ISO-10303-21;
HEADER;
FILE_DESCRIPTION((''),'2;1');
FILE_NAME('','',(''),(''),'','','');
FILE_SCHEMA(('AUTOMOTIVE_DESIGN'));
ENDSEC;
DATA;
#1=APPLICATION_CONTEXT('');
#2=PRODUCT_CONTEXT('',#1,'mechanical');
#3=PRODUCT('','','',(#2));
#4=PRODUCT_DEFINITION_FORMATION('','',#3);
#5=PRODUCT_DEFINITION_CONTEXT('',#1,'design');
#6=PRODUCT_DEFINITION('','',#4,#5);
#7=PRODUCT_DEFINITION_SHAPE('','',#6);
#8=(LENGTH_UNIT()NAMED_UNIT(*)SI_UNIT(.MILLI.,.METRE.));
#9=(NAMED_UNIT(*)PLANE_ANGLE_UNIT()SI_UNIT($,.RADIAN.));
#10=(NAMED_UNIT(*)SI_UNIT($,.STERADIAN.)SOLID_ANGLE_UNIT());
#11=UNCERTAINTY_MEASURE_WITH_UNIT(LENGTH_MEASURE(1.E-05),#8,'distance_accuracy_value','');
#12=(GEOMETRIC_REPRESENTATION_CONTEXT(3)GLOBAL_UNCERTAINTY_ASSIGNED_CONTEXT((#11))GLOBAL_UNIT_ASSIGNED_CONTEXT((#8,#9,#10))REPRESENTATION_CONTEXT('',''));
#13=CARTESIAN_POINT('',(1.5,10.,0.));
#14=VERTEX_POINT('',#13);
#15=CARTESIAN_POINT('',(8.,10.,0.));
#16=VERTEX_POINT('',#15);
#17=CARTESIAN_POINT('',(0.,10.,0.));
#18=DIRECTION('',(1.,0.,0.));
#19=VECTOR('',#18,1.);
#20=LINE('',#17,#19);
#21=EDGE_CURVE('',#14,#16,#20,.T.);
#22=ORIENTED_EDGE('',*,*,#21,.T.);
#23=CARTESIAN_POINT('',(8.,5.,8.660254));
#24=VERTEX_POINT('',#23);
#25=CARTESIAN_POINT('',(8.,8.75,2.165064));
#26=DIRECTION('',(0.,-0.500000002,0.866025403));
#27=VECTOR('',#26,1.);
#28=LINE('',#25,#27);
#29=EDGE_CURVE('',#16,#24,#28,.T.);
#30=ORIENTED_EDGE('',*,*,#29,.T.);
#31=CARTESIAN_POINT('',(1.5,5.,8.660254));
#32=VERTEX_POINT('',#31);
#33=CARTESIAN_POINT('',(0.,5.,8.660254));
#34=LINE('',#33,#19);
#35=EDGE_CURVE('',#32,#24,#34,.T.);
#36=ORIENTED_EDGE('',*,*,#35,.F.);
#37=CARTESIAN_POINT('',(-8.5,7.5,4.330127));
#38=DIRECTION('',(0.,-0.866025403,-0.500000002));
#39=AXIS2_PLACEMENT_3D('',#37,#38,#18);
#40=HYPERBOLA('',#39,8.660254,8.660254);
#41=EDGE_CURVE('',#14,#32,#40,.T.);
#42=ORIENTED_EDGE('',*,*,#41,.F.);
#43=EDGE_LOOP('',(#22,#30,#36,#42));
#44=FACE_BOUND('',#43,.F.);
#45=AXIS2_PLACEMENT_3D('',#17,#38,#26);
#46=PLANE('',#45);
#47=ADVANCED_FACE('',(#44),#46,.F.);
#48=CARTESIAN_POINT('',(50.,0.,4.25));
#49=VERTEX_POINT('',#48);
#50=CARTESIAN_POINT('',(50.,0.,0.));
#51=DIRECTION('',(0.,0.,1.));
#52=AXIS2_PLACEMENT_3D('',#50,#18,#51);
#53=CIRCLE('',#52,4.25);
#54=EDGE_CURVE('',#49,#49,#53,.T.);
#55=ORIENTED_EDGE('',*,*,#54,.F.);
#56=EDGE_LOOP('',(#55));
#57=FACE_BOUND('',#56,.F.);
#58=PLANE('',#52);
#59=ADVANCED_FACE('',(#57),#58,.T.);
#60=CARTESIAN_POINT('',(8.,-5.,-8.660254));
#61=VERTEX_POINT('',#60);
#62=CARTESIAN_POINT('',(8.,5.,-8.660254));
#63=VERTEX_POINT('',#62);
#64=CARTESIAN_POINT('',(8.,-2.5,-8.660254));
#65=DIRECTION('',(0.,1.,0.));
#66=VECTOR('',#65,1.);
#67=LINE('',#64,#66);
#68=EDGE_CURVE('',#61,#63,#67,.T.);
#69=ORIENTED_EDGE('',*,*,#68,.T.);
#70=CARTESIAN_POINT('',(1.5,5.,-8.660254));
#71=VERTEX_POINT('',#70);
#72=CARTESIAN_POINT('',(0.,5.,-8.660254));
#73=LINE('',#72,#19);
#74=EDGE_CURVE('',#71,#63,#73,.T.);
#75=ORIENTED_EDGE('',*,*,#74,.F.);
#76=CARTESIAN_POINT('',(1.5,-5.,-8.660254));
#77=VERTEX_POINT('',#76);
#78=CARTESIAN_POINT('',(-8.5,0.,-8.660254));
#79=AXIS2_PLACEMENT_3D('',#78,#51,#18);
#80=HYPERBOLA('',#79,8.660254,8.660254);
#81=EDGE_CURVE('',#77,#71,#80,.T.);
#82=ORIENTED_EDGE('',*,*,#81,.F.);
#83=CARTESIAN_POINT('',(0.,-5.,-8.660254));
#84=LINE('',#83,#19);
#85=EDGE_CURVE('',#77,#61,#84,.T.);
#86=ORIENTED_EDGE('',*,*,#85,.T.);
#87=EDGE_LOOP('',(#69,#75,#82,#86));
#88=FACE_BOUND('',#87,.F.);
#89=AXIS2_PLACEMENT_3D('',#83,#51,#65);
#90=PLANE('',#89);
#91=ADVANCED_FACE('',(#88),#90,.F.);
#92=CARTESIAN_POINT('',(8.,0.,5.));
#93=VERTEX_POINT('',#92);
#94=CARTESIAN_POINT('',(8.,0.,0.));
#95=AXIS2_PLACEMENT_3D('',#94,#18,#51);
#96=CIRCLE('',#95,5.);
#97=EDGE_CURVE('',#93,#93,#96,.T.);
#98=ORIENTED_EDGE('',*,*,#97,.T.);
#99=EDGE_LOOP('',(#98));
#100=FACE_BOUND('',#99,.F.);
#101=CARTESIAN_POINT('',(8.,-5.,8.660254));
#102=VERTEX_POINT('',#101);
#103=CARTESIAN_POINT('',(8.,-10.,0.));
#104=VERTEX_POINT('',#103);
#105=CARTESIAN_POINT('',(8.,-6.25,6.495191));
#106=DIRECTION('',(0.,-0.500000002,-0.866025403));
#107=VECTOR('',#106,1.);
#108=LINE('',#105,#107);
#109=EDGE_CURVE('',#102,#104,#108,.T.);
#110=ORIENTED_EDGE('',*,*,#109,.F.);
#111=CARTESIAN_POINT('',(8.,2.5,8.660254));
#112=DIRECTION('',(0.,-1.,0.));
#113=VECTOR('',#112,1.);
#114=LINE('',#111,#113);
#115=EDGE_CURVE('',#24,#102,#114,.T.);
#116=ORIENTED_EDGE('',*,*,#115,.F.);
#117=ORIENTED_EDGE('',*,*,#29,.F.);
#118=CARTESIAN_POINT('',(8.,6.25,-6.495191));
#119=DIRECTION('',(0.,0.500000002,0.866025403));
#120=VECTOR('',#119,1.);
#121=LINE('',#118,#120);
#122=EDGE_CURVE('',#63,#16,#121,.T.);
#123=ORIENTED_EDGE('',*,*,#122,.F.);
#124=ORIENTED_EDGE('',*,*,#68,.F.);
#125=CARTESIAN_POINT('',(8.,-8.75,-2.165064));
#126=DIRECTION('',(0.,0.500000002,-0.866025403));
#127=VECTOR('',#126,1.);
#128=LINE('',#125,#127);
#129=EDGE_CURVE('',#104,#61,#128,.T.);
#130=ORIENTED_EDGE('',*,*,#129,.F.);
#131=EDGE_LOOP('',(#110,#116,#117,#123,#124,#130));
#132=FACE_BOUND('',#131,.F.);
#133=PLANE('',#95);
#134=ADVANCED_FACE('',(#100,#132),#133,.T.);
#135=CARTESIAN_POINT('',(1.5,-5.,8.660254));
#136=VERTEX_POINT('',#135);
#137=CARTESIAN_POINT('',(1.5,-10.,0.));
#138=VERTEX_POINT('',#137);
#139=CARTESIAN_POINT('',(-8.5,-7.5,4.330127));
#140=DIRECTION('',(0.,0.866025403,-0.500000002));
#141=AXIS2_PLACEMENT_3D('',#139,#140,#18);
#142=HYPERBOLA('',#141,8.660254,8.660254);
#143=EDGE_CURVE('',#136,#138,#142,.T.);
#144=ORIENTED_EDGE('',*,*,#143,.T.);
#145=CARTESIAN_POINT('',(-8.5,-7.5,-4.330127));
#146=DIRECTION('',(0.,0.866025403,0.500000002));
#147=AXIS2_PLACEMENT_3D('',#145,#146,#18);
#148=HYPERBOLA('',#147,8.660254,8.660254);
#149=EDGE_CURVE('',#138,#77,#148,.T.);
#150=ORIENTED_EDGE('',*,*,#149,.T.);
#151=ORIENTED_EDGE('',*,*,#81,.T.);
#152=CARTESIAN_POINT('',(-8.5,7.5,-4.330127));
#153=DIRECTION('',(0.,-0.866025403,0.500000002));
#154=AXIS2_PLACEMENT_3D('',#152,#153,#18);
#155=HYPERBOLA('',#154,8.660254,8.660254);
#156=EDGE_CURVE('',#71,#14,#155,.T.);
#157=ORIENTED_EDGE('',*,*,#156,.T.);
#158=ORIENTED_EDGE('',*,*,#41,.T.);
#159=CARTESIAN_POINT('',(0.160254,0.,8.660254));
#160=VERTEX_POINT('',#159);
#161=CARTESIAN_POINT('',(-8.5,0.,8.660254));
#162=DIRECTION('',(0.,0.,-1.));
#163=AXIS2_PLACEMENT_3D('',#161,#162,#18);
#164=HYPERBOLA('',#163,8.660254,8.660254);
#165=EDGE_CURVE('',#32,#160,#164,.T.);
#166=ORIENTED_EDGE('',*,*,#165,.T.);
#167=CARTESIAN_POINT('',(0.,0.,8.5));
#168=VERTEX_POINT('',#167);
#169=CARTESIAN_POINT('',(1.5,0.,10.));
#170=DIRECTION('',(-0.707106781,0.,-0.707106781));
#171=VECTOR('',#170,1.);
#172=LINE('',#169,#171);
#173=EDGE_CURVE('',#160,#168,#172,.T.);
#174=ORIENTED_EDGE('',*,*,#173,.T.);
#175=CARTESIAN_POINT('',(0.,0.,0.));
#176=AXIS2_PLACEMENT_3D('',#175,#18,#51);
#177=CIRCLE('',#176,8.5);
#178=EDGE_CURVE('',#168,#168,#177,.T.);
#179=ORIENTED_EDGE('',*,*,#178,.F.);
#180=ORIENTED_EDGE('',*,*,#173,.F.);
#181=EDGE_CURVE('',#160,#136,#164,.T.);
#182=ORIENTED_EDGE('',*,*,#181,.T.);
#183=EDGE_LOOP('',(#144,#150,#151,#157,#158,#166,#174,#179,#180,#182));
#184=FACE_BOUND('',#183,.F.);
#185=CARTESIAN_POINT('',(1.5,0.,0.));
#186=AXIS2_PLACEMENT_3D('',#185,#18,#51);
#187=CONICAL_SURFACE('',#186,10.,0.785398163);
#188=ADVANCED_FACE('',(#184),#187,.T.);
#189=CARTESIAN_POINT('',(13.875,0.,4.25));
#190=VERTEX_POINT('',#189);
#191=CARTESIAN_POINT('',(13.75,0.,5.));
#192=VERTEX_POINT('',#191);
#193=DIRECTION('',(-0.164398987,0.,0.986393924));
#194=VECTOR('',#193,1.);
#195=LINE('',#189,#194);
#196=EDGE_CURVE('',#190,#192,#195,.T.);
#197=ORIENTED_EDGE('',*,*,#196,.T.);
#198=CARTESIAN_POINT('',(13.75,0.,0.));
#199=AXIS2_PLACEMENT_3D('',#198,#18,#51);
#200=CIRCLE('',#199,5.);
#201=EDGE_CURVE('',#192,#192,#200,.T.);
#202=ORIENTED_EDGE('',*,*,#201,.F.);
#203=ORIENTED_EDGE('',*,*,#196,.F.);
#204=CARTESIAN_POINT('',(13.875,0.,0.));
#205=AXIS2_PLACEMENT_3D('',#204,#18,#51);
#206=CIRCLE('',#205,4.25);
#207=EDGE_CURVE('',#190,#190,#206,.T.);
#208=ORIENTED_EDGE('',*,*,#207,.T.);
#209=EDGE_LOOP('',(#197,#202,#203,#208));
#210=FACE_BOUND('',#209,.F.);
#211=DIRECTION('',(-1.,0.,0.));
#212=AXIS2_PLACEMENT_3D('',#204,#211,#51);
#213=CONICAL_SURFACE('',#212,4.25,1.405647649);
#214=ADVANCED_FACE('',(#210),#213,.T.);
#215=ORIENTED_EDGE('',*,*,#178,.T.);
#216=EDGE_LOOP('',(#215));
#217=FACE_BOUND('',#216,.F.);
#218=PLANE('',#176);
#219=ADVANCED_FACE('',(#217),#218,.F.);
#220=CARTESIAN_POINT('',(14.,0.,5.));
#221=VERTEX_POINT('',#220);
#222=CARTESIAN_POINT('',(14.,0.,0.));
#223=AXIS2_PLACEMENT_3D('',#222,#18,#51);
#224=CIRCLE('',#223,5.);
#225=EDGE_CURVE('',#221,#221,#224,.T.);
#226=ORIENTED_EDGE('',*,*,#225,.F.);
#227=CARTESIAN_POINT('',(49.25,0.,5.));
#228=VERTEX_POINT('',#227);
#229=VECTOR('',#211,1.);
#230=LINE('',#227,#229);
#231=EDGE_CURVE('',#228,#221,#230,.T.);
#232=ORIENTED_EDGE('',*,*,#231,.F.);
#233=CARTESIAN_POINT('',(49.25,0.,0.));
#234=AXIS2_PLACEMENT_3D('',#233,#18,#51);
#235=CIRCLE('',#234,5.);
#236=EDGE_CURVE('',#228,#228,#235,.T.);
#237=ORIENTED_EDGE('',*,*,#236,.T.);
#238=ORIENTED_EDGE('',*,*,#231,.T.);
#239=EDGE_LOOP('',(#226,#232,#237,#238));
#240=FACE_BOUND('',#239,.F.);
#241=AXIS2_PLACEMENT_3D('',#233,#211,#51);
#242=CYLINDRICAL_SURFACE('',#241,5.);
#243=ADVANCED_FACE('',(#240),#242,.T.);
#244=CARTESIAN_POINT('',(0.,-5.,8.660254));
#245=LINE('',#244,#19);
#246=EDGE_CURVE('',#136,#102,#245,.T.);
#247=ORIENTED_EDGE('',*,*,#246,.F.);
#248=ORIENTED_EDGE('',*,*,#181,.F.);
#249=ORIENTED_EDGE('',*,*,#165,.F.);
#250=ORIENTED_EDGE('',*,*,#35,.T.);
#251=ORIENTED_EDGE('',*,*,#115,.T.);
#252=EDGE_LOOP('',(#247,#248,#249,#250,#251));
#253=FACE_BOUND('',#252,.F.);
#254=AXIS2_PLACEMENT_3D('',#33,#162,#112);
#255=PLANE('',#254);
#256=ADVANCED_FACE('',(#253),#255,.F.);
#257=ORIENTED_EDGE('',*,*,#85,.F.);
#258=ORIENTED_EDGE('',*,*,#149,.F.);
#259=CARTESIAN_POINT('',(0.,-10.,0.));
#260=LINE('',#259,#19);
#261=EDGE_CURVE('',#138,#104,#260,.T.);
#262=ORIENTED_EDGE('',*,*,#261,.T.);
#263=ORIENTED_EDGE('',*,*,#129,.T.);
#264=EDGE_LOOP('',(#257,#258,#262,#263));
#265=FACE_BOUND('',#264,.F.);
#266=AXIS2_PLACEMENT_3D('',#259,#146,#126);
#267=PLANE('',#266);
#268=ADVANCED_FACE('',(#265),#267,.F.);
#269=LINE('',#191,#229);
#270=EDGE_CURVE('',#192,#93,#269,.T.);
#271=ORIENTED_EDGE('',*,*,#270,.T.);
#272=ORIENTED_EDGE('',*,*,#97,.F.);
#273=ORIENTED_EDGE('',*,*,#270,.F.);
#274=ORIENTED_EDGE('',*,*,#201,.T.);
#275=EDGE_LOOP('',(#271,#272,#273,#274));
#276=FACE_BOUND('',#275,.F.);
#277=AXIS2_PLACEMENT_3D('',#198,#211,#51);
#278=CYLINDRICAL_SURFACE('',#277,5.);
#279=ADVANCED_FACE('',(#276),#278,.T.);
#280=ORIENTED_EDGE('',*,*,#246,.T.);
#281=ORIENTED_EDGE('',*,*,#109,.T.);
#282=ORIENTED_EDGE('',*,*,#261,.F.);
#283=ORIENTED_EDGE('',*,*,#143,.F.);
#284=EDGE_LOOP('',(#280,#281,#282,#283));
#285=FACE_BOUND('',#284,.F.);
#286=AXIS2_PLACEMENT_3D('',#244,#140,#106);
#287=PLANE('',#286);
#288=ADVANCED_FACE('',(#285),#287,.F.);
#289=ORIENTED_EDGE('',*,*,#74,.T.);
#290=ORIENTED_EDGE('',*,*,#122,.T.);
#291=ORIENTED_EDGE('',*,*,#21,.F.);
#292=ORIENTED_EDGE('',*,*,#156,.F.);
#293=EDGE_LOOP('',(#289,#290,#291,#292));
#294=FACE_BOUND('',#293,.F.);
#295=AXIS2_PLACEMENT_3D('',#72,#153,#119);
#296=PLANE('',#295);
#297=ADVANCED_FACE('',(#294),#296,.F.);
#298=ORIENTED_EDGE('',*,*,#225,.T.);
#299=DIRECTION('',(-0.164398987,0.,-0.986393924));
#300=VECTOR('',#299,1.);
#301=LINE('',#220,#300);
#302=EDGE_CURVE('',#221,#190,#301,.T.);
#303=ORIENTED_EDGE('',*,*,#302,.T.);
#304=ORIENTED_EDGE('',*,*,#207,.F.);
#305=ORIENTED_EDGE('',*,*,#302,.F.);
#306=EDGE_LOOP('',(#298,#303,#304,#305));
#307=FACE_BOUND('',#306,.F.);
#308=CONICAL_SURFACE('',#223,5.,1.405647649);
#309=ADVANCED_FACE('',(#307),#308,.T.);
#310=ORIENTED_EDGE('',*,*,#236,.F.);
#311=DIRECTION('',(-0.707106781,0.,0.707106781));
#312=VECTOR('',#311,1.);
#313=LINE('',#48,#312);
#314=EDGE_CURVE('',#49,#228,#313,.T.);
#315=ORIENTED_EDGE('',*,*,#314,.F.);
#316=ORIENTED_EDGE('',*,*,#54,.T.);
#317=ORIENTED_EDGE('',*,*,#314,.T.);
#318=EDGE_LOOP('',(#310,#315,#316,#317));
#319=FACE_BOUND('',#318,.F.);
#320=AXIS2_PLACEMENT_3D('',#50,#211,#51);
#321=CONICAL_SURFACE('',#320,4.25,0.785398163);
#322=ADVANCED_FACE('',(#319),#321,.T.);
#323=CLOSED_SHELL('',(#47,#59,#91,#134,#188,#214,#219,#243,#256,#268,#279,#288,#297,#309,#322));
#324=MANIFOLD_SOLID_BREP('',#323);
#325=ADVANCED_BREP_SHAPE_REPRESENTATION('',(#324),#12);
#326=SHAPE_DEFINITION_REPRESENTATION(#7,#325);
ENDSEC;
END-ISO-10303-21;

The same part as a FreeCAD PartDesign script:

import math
import FreeCAD as App
import Part
import Sketcher
from FreeCAD import Vector
Q = App.Units.Quantity


def edges_at(feature, points):
    """Names of the edges that pass closest to the given points."""
    edges = feature.Shape.Edges
    near = lambda p: min(range(len(edges)), key=lambda i: edges[i].distToShape(Part.Vertex(*p))[0])
    return sorted({f"Edge{near(p) + 1}" for p in points})


def add_polygon(sketch, points):
    """Adds a closed chain of lines whose ends are joined by coincident constraints."""
    first, n = sketch.GeometryCount, len(points)
    for a, b in zip(points, points[1:] + points[:1]):
        sketch.addGeometry(Part.LineSegment(App.Vector(*a, 0), App.Vector(*b, 0)), False)
    for i in range(n):
        sketch.addConstraint(Sketcher.Constraint("Coincident", first + i, 2, first + (i + 1) % n, 1))

doc = App.newDocument("Part")
body = doc.addObject("PartDesign::Body", "Body")

# Sketch on XZ plane
sketch1 = body.newObject("Sketcher::SketchObject", "Sketch")
sketch1.AttachmentSupport = (doc.getObject("XZ_Plane"), [""])
sketch1.MapMode = "FlatFace"
add_polygon(sketch1, [(8, 5), (8, 10), (0, 10), (0, 0), (50, 0), (50, 4.2), (49.2, 5), (14, 5), (13.9, 4.2), (13.8, 5)])  # lines 0-9
sketch1.addConstraint([
    Sketcher.Constraint("Vertical", 0),
    Sketcher.Constraint("Horizontal", 1),
    Sketcher.Constraint("Vertical", 2),
    Sketcher.Constraint("Horizontal", 3),
    Sketcher.Constraint("Vertical", 4),
    Sketcher.Constraint("Horizontal", 6),
    Sketcher.Constraint("Horizontal", 9),
    Sketcher.Constraint("Coincident", 2, 2, -1, 1),
    Sketcher.Constraint("Horizontal", 4, 2, 7, 2),
    Sketcher.Constraint("Horizontal", 6, 2, 8, 2),
    Sketcher.Constraint("Equal", 7, 8),
    Sketcher.Constraint("DistanceX", 1, 2, 1, 1, Q("8 mm")),
    Sketcher.Constraint("DistanceX", 3, 1, 3, 2, Q("50 mm")),
    Sketcher.Constraint("DistanceY", 0, 1, 0, 2, Q("5 mm")),
    Sketcher.Constraint("DistanceY", 2, 2, 2, 1, Q("10 mm")),
    Sketcher.Constraint("Angle", 5, Q("135 deg")),
    Sketcher.Constraint("DistanceX", -1, 1, 6, 2, Q("14 mm")),
    Sketcher.Constraint("DistanceX", 6, 2, 6, 1, Q("35.25 mm")),
    Sketcher.Constraint("DistanceX", 9, 2, 9, 1, Q("5.75 mm")),
])
revolution = body.newObject("PartDesign::Revolution", "Revolution")
revolution.Profile = sketch1
revolution.ReferenceAxis = (sketch1, ["H_Axis"])
revolution.Angle = 360
doc.recompute()

chamfer = body.newObject("PartDesign::Chamfer", "Chamfer")
chamfer.Base = (revolution, edges_at(revolution, [(0, 0, -10)]))
chamfer.Size = 1.5

# Sketch on YZ plane
sketch2 = body.newObject("Sketcher::SketchObject", "Sketch001")
sketch2.AttachmentSupport = (doc.getObject("YZ_Plane"), [""])
sketch2.MapMode = "FlatFace"
sketch2.addGeometry([
    Part.LineSegment(Vector(10, 0, 0), Vector(5, 9, 0)),  # 0
    Part.ArcOfCircle(Part.Circle(Vector(0, 0, 0), Vector(0, 0, 1), 10), math.radians(0), math.radians(60)),  # 1
    Part.LineSegment(Vector(5, 9, 0), Vector(-5, 9, 0)),  # 2
    Part.ArcOfCircle(Part.Circle(Vector(0, 0, 0), Vector(0, 0, 1), 10), math.radians(60), math.radians(120)),  # 3
    Part.LineSegment(Vector(-5, 9, 0), Vector(-10, 0, 0)),  # 4
    Part.ArcOfCircle(Part.Circle(Vector(0, 0, 0), Vector(0, 0, 1), 10), math.radians(120), math.radians(180)),  # 5
    Part.ArcOfCircle(Part.Circle(Vector(0, 0, 0), Vector(0, 0, 1), 10), math.radians(-180), math.radians(-120)),  # 6
    Part.LineSegment(Vector(-10, 0, 0), Vector(-5, -9, 0)),  # 7
    Part.ArcOfCircle(Part.Circle(Vector(0, 0, 0), Vector(0, 0, 1), 10), math.radians(-120), math.radians(-60)),  # 8
    Part.LineSegment(Vector(-5, -9, 0), Vector(5, -9, 0)),  # 9
    Part.ArcOfCircle(Part.Circle(Vector(0, 0, 0), Vector(0, 0, 1), 10), math.radians(-60), math.radians(0)),  # 10
    Part.LineSegment(Vector(5, -9, 0), Vector(10, 0, 0)),  # 11
], False)
sketch2.addConstraint([
    Sketcher.Constraint("Coincident", 0, 1, 1, 1),
    Sketcher.Constraint("Coincident", 1, 2, 0, 2),
    Sketcher.Constraint("Coincident", 2, 1, 3, 1),
    Sketcher.Constraint("Coincident", 3, 2, 2, 2),
    Sketcher.Constraint("Coincident", 4, 1, 5, 1),
    Sketcher.Constraint("Coincident", 5, 2, 4, 2),
    Sketcher.Constraint("Coincident", 6, 1, 7, 1),
    Sketcher.Constraint("Coincident", 7, 2, 6, 2),
    Sketcher.Constraint("Coincident", 8, 1, 9, 1),
    Sketcher.Constraint("Coincident", 9, 2, 8, 2),
    Sketcher.Constraint("Coincident", 10, 1, 11, 1),
    Sketcher.Constraint("Coincident", 11, 2, 10, 2),
    Sketcher.Constraint("Horizontal", 2),
    Sketcher.Constraint("Horizontal", 9),
    Sketcher.Constraint("Coincident", 1, 3, -1, 1),
    Sketcher.Constraint("Coincident", 3, 3, -1, 1),
    Sketcher.Constraint("Coincident", 5, 3, -1, 1),
    Sketcher.Constraint("Coincident", 6, 3, -1, 1),
    Sketcher.Constraint("Coincident", 8, 3, -1, 1),
    Sketcher.Constraint("Coincident", 10, 3, -1, 1),
    Sketcher.Constraint("Coincident", 2, 1, 1, 2),
    Sketcher.Constraint("Coincident", 4, 1, 3, 2),
    Sketcher.Constraint("Coincident", 6, 1, 5, 2),
    Sketcher.Constraint("Coincident", 8, 1, 7, 2),
    Sketcher.Constraint("Coincident", 10, 1, 9, 2),
    Sketcher.Constraint("PointOnObject", 0, 1, -1),
    Sketcher.Constraint("PointOnObject", 5, 2, -1),
    Sketcher.Constraint("PointOnObject", 11, 2, -1),
    Sketcher.Constraint("Parallel", 0, 7),
    Sketcher.Constraint("Radius", 1, Q("10 mm")),
    Sketcher.Constraint("DistanceX", 2, 2, 2, 1, Q("10 mm")),
])
pocket1 = body.newObject("PartDesign::Pocket", "Pocket")
pocket1.Profile = sketch2
pocket1.Type = "ThroughAll"
pocket1.Reversed = True

doc.recompute()
